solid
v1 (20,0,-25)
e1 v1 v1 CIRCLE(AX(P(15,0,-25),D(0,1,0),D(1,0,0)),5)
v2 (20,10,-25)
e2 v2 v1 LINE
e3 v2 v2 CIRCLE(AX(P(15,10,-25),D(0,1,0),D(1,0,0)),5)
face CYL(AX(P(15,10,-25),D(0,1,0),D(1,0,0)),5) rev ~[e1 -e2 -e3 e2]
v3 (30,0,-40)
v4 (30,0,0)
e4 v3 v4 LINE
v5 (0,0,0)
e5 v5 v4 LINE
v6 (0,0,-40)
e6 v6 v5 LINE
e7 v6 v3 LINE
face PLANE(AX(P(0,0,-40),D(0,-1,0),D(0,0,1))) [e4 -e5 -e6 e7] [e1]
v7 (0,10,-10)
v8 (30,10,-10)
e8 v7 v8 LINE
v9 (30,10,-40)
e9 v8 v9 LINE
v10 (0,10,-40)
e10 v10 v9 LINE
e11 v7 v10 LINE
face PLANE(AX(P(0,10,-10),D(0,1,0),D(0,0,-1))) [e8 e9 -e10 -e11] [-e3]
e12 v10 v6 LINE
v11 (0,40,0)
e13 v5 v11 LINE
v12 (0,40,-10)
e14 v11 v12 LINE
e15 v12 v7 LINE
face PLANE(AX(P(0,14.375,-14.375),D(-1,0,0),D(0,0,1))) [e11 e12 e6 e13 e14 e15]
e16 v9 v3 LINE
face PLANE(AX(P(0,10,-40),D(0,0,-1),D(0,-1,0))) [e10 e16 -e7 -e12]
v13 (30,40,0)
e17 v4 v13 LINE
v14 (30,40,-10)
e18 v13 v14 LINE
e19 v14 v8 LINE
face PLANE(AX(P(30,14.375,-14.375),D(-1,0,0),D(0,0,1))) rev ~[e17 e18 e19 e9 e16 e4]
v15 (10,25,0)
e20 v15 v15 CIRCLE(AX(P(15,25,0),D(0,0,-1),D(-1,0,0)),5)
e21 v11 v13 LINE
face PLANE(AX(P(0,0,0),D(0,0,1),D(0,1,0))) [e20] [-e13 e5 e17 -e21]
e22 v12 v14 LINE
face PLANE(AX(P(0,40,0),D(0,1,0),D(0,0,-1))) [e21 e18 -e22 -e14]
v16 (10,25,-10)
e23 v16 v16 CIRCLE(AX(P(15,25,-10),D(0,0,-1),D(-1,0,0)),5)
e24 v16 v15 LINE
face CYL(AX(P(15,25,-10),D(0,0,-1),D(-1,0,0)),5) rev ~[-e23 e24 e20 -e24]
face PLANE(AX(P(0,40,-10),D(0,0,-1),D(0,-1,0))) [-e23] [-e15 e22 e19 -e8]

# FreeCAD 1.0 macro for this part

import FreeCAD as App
import Part
import Sketcher

V = App.Vector


def add_polygon(sketch, points):
    """Adds a closed chain of lines whose ends are joined by coincident constraints."""
    first, n = sketch.GeometryCount, len(points)
    for a, b in zip(points, points[1:] + points[:1]):
        sketch.addGeometry(Part.LineSegment(App.Vector(*a, 0), App.Vector(*b, 0)), False)
    for i in range(n):
        sketch.addConstraint(Sketcher.Constraint("Coincident", first + i, 2, first + (i + 1) % n, 1))

doc = App.newDocument("Part")
body = doc.addObject("PartDesign::Body", "Body")

# Sketch on YZ plane
sketch1 = doc.addObject("Sketcher::SketchObject", "Sketch")
body.addObject(sketch1)
sketch1.AttachmentSupport = (doc.YZ_Plane, [""])
sketch1.MapMode = "FlatFace"
add_polygon(sketch1, [(40, 0), (0, 0), (0, -40), (10, -40), (10, -10), (40, -10)])  # lines 0-5
sketch1.addConstraint([
    Sketcher.Constraint("Horizontal", 0),
    Sketcher.Constraint("Vertical", 1),
    Sketcher.Constraint("Horizontal", 2),
    Sketcher.Constraint("Vertical", 3),
    Sketcher.Constraint("Horizontal", 4),
    Sketcher.Constraint("Vertical", 5),
    Sketcher.Constraint("Coincident", 0, 2, -1, 1),
    Sketcher.Constraint("Equal", 0, 1),
    Sketcher.Constraint("Equal", 4, 3),
    Sketcher.Constraint("DistanceX", 0, 2, 0, 1, 40.0),
    Sketcher.Constraint("DistanceX", 2, 1, 2, 2, 10.0),
])
pad1 = doc.addObject("PartDesign::Pad", "Pad")
body.addObject(pad1)
pad1.Profile = sketch1
pad1.Length = 30

# Sketch on XY plane
sketch2 = doc.addObject("Sketcher::SketchObject", "Sketch001")
body.addObject(sketch2)
sketch2.AttachmentSupport = (doc.XY_Plane, [""])
sketch2.MapMode = "FlatFace"
sketch2.AttachmentOffset = App.Placement(V(0, 0, -10), App.Rotation())
sketch2.addGeometry(Part.Circle(V(15, 25, 0), V(0, 0, 1), 5), False)
sketch2.addConstraint([
    Sketcher.Constraint("Diameter", 0, 10.0),
    Sketcher.Constraint("DistanceX", -1, 1, 0, 3, 15.0),
    Sketcher.Constraint("DistanceY", -1, 1, 0, 3, 25.0),
])
pocket1 = doc.addObject("PartDesign::Pocket", "Pocket")
body.addObject(pocket1)
pocket1.Profile = sketch2
pocket1.Length = 30
pocket1.Reversed = True

# Sketch on XZ plane
sketch3 = doc.addObject("Sketcher::SketchObject", "Sketch002")
body.addObject(sketch3)
sketch3.AttachmentSupport = (doc.XZ_Plane, [""])
sketch3.MapMode = "FlatFace"
sketch3.AttachmentOffset = App.Placement(V(0, 0, -10), App.Rotation())
sketch3.addGeometry(Part.Circle(V(15, -25, 0), V(0, 0, 1), 5), False)
sketch3.addConstraint([
    Sketcher.Constraint("Diameter", 0, 10.0),
    Sketcher.Constraint("DistanceX", -1, 1, 0, 3, 15.0),
    Sketcher.Constraint("DistanceY", 0, 3, -1, 1, 25.0),
])
pocket2 = doc.addObject("PartDesign::Pocket", "Pocket001")
body.addObject(pocket2)
pocket2.Profile = sketch3
pocket2.Length = 30
pocket2.Reversed = True

doc.recompute()
